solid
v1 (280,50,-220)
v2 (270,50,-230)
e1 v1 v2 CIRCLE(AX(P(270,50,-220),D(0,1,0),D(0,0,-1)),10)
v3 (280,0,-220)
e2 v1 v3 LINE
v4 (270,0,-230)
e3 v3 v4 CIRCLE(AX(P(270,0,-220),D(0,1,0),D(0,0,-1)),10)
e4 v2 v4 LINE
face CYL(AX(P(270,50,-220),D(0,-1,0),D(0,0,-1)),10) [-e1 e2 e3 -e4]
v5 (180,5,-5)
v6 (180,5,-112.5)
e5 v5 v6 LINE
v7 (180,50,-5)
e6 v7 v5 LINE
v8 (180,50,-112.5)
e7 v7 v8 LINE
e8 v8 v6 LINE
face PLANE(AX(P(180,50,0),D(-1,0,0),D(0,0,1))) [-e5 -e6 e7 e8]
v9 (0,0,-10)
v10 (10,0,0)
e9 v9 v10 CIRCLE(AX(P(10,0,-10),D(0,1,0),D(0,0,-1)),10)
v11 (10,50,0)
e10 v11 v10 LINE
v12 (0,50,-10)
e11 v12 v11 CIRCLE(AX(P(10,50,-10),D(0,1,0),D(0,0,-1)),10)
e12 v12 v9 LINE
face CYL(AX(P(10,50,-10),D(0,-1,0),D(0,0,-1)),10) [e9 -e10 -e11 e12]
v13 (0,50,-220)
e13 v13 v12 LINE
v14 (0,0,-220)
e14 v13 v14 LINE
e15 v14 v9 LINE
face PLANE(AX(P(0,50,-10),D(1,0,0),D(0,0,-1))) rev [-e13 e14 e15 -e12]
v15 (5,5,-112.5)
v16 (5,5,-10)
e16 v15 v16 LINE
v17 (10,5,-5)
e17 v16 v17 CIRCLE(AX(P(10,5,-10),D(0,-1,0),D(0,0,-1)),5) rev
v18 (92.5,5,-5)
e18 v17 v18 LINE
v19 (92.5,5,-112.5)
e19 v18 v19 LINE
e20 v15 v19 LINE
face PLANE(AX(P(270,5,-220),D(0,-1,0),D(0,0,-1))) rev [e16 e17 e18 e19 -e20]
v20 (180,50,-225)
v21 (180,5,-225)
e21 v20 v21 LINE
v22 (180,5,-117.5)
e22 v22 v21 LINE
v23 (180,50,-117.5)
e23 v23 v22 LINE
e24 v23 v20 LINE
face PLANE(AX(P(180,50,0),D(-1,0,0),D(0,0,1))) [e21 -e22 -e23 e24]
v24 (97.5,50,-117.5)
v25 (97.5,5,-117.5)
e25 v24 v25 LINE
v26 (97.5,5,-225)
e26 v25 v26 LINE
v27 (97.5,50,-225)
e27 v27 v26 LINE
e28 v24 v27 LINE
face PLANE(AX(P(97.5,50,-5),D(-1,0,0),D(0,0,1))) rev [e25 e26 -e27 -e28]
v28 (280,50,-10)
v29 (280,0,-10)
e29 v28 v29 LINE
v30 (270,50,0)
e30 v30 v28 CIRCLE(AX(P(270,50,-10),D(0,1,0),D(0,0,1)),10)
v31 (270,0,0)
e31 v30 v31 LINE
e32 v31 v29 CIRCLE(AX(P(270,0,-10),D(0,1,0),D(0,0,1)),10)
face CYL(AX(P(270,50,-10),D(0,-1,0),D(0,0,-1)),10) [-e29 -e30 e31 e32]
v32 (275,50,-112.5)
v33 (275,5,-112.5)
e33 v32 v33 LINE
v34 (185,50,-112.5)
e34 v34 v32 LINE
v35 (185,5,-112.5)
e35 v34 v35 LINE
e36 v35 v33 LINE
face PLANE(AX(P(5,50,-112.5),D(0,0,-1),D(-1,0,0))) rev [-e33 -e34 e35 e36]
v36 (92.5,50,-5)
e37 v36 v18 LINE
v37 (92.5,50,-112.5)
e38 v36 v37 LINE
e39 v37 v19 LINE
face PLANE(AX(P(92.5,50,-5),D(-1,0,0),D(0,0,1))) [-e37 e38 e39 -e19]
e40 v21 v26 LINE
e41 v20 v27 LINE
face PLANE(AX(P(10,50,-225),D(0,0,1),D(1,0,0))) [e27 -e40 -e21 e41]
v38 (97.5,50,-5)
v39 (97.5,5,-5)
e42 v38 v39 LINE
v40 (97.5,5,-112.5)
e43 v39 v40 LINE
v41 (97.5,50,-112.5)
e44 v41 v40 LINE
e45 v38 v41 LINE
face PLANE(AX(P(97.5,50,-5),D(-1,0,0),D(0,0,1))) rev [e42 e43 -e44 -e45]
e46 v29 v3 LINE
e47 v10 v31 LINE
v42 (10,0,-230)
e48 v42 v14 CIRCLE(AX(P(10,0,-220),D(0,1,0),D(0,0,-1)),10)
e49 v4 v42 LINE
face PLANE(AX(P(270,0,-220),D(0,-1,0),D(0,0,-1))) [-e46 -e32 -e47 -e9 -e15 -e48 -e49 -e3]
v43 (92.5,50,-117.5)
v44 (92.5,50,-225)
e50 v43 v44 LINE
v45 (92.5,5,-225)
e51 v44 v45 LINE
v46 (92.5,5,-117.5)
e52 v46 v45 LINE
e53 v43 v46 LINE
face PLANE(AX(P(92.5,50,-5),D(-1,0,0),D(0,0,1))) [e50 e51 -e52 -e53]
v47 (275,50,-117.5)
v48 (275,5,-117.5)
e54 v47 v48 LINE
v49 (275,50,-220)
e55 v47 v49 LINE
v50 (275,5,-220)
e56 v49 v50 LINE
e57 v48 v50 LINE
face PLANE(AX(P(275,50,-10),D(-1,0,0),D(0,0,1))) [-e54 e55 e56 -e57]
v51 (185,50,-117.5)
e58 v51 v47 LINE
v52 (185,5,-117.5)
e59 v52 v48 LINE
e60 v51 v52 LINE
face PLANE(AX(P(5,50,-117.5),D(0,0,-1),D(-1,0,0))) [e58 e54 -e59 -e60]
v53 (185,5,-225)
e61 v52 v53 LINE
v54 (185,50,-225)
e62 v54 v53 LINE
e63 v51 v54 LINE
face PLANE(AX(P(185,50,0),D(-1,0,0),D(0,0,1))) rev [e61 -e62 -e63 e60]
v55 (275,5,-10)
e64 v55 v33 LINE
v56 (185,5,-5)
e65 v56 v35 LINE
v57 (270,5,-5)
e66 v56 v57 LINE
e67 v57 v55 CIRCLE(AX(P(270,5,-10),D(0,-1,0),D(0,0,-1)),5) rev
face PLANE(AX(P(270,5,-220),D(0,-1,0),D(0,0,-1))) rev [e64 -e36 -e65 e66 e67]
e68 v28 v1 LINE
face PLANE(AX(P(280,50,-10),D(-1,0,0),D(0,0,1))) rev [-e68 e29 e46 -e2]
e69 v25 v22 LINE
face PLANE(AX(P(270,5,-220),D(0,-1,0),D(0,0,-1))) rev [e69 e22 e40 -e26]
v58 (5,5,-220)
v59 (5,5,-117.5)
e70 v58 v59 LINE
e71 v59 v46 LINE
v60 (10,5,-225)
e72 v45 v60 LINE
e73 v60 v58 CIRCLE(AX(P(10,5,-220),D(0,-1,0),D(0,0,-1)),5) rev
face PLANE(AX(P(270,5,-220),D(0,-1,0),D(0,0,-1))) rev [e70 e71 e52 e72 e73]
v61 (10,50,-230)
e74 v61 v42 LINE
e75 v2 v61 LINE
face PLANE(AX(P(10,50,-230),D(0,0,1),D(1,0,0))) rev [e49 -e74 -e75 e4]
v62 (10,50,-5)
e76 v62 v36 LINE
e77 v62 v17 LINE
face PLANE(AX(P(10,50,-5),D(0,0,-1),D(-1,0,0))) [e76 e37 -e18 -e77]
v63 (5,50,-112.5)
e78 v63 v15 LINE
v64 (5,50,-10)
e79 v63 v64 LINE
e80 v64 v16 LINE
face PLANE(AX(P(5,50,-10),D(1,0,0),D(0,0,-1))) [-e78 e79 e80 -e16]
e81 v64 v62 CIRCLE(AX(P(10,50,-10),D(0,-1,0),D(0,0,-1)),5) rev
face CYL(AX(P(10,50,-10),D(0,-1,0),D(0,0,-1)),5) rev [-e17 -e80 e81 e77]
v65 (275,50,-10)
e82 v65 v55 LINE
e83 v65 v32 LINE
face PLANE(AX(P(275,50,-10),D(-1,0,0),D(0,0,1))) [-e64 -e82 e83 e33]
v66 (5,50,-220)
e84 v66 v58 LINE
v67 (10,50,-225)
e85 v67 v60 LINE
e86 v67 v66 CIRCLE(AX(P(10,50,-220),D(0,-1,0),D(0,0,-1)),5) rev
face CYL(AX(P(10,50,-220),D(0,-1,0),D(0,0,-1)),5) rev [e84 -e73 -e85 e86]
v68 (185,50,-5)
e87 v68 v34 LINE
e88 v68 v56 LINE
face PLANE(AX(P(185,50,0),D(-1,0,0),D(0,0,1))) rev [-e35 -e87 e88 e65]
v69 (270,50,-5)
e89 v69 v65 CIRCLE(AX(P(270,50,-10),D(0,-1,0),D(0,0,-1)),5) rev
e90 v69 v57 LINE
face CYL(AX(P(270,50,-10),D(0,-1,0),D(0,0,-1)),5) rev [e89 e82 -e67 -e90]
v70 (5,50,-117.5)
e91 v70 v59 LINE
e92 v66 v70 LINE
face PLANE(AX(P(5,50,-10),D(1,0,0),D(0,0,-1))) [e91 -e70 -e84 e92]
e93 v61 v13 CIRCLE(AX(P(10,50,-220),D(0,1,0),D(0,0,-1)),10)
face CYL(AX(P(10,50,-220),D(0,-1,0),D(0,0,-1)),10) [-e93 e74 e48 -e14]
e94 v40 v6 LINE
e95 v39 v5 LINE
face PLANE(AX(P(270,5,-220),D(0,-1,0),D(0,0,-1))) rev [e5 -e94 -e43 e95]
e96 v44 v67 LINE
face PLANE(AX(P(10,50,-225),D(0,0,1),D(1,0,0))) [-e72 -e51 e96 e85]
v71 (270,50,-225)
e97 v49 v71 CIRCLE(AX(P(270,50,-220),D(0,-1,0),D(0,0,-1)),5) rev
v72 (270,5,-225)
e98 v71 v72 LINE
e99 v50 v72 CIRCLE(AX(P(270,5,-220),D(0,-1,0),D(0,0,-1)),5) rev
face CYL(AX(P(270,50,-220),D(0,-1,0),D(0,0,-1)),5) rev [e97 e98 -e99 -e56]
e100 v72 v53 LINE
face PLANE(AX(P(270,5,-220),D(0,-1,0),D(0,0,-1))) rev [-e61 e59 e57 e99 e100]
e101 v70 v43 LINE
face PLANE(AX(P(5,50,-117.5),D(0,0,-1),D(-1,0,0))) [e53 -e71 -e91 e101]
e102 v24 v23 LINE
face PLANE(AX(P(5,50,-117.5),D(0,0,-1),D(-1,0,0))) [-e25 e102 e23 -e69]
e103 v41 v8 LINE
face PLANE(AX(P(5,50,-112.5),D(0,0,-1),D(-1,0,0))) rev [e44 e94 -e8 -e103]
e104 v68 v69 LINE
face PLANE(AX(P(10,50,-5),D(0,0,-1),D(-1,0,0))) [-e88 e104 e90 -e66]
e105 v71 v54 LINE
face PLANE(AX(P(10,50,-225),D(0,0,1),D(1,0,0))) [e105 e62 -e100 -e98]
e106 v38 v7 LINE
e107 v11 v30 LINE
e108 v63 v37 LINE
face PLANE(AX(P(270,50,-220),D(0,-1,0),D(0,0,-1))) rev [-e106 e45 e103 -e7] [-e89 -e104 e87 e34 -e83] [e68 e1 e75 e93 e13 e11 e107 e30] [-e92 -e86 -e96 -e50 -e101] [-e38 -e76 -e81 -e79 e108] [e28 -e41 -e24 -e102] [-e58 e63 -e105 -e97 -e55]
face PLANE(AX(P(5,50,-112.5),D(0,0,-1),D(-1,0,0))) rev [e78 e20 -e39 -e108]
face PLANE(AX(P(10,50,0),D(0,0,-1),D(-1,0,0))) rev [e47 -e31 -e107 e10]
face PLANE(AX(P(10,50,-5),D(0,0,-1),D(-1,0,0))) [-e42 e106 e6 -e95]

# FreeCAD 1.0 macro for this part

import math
import FreeCAD as App
import Part
import Sketcher


def faces_at(feature, points):
    """Names of the faces that lie closest to the given points."""
    faces = feature.Shape.Faces
    near = lambda p: min(range(len(faces)), key=lambda i: faces[i].distToShape(Part.Vertex(*p))[0])
    return sorted({f"Face{near(p) + 1}" for p in points})


def add_polygon(sketch, points):
    """Adds a closed chain of lines whose ends are joined by coincident constraints."""
    first, n = sketch.GeometryCount, len(points)
    for a, b in zip(points, points[1:] + points[:1]):
        sketch.addGeometry(Part.LineSegment(App.Vector(*a, 0), App.Vector(*b, 0)), False)
    for i in range(n):
        sketch.addConstraint(Sketcher.Constraint("Coincident", first + i, 2, first + (i + 1) % n, 1))

doc = App.newDocument("Part")
params = doc.addObject("Spreadsheet::Sheet", "Params")
for row, (alias, value) in enumerate([
    ("sketch1_radius", "10 mm"),
    ("sketch1_width", "260 mm"),
    ("sketch1_height", "210 mm"),
    ("pad1_length", "50 mm"),
    ("thickness_wall", "5 mm"),
    ("sketch2_width", "5 mm"),
    ("sketch2_width2", "90 mm"),
    ("sketch2_width3", "87.5 mm"),
    ("sketch2_width4", "82.5 mm"),
    ("sketch2_height", "107.5 mm"),
    ("pad2_length", "45 mm"),
], start=1):
    params.set(f"A{row}", alias)
    params.set(f"B{row}", "=" + value)
    params.setAlias(f"B{row}", alias)

body = doc.addObject("PartDesign::Body", "Body")

# Sketch on XZ plane
sketch1 = body.newObject("Sketcher::SketchObject", "Sketch")
sketch1.AttachmentSupport = (doc.getObject("XZ_Plane"), [""])
sketch1.MapMode = "FlatFace"
sketch1.addGeometry([
    Part.LineSegment(App.Vector(10, 0, 0), App.Vector(270, 0, 0)),  # 0
    Part.ArcOfCircle(Part.Circle(App.Vector(270, -10, 0), App.Vector(0, 0, 1), 10), math.radians(0), math.radians(90)),  # 1
    Part.LineSegment(App.Vector(280, -10, 0), App.Vector(280, -220, 0)),  # 2
    Part.ArcOfCircle(Part.Circle(App.Vector(270, -220, 0), App.Vector(0, 0, 1), 10), math.radians(-90), math.radians(0)),  # 3
    Part.LineSegment(App.Vector(270, -230, 0), App.Vector(10, -230, 0)),  # 4
    Part.ArcOfCircle(Part.Circle(App.Vector(10, -220, 0), App.Vector(0, 0, 1), 10), math.radians(180), math.radians(270)),  # 5
    Part.LineSegment(App.Vector(0, -220, 0), App.Vector(0, -10, 0)),  # 6
    Part.ArcOfCircle(Part.Circle(App.Vector(10, -10, 0), App.Vector(0, 0, 1), 10), math.radians(90), math.radians(180)),  # 7
], False)
sketch1.addConstraint([
    Sketcher.Constraint("Tangent", 0, 2, 1, 2),
    Sketcher.Constraint("Tangent", 1, 1, 2, 1),
    Sketcher.Constraint("Tangent", 2, 2, 3, 2),
    Sketcher.Constraint("Tangent", 3, 1, 4, 1),
    Sketcher.Constraint("Tangent", 4, 2, 5, 2),
    Sketcher.Constraint("Tangent", 5, 1, 6, 1),
    Sketcher.Constraint("Tangent", 6, 2, 7, 2),
    Sketcher.Constraint("Tangent", 7, 1, 0, 1),
    Sketcher.Constraint("Horizontal", 0),
    Sketcher.Constraint("Vertical", 2),
    Sketcher.Constraint("Horizontal", 4),
    Sketcher.Constraint("Vertical", 6),
    Sketcher.Constraint("Equal", 1, 3),
    Sketcher.Constraint("Equal", 3, 5),
    Sketcher.Constraint("Equal", 5, 7),
    Sketcher.Constraint("PointOnObject", 0, 2, -1),
    Sketcher.Constraint("PointOnObject", 5, 1, -2),
    Sketcher.Constraint("Radius", 1, 10.0),
    Sketcher.Constraint("DistanceX", 0, 1, 0, 2, 260.0),
    Sketcher.Constraint("DistanceY", 2, 2, 2, 1, 210.0),
])
sketch1.setExpression("Constraints[17]", "Params.sketch1_radius")
sketch1.setExpression("Constraints[18]", "Params.sketch1_width")
sketch1.setExpression("Constraints[19]", "Params.sketch1_height")
pad1 = body.newObject("PartDesign::Pad", "Pad")
pad1.Profile = sketch1
pad1.setExpression("Length", "Params.pad1_length")
pad1.Reversed = True
doc.recompute()

thickness = body.newObject("PartDesign::Thickness", "Thickness")
thickness.Base = (pad1, faces_at(pad1, [(140, 50, -115)]))
thickness.setExpression("Value", "Params.thickness_wall")
thickness.Reversed = True
thickness.Join = "Intersection"

# Sketch on XZ plane
sketch2 = body.newObject("Sketcher::SketchObject", "Sketch001")
sketch2.AttachmentSupport = (doc.getObject("XZ_Plane"), [""])
sketch2.MapMode = "FlatFace"
sketch2.AttachmentOffset = App.Placement(App.Vector(0, 0, -5), App.Rotation())
add_polygon(sketch2, [(5, -118), (5, -112), (92, -112), (92, -5), (98, -5), (98, -112), (180, -112), (180, -5), (185, -5), (185, -112), (275, -112), (275, -118), (185, -118), (185, -225), (180, -225), (180, -118), (98, -118), (98, -225), (92, -225), (92, -118)])  # lines 0-19
sketch2.addConstraint([
    Sketcher.Constraint("Vertical", 0),
    Sketcher.Constraint("Horizontal", 1),
    Sketcher.Constraint("Vertical", 2),
    Sketcher.Constraint("Horizontal", 3),
    Sketcher.Constraint("Vertical", 4),
    Sketcher.Constraint("Horizontal", 5),
    Sketcher.Constraint("Vertical", 6),
    Sketcher.Constraint("Horizontal", 7),
    Sketcher.Constraint("Vertical", 8),
    Sketcher.Constraint("Horizontal", 9),
    Sketcher.Constraint("Vertical", 10),
    Sketcher.Constraint("Horizontal", 11),
    Sketcher.Constraint("Vertical", 12),
    Sketcher.Constraint("Horizontal", 13),
    Sketcher.Constraint("Vertical", 14),
    Sketcher.Constraint("Horizontal", 15),
    Sketcher.Constraint("Vertical", 16),
    Sketcher.Constraint("Horizontal", 17),
    Sketcher.Constraint("Vertical", 18),
    Sketcher.Constraint("Horizontal", 19),
    Sketcher.Constraint("Horizontal", 1, 2, 4, 2),
    Sketcher.Constraint("Horizontal", 3, 2, 6, 2),
    Sketcher.Constraint("Horizontal", 5, 2, 8, 2),
    Sketcher.Constraint("Horizontal", 11, 2, 14, 2),
    Sketcher.Constraint("Horizontal", 13, 2, 16, 2),
    Sketcher.Constraint("Horizontal", 15, 2, 18, 2),
    Sketcher.Constraint("Vertical", 8, 2, 11, 2),
    Sketcher.Constraint("Vertical", 6, 2, 13, 2),
    Sketcher.Constraint("Vertical", 4, 2, 15, 2),
    Sketcher.Constraint("Vertical", 2, 2, 17, 2),
    Sketcher.Constraint("Equal", 3, 7),
    Sketcher.Constraint("Equal", 17, 0),
    Sketcher.Constraint("Equal", 8, 12),
    Sketcher.Constraint("DistanceX", 3, 1, 3, 2, 5.0),
    Sketcher.Constraint("DistanceX", 9, 1, 9, 2, 90.0),
    Sketcher.Constraint("DistanceX", 1, 1, 1, 2, 87.5),
    Sketcher.Constraint("DistanceX", 5, 1, 5, 2, 82.5),
    Sketcher.Constraint("DistanceY", 2, 1, 2, 2, 107.5),
    Sketcher.Constraint("DistanceX", -1, 1, 0, 2, 5.0),
    Sketcher.Constraint("DistanceY", 2, 2, -1, 1, 5.0),
])
sketch2.setExpression("Constraints[53]", "Params.sketch2_width")
sketch2.setExpression("Constraints[54]", "Params.sketch2_width2")
sketch2.setExpression("Constraints[55]", "Params.sketch2_width3")
sketch2.setExpression("Constraints[56]", "Params.sketch2_width4")
sketch2.setExpression("Constraints[57]", "Params.sketch2_height")
pad2 = body.newObject("PartDesign::Pad", "Pad001")
pad2.Profile = sketch2
pad2.setExpression("Length", "Params.pad2_length")
pad2.Reversed = True

doc.recompute()
